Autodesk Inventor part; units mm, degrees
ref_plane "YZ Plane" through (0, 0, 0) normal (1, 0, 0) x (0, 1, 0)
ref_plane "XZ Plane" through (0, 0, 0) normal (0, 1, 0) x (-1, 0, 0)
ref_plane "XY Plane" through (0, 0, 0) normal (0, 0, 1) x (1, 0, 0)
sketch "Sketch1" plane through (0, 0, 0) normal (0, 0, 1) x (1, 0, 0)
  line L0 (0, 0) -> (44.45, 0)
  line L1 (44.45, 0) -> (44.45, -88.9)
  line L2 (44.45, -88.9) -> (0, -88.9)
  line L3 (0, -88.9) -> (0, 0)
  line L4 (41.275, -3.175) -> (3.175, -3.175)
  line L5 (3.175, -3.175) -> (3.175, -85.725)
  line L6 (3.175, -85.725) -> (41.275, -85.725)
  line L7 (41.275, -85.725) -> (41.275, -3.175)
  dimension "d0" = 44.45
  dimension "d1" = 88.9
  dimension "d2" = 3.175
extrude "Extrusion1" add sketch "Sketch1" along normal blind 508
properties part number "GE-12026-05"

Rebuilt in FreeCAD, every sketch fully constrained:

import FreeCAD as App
import Part
import Sketcher

V = App.Vector
Q = App.Units.Quantity


def add_polygon(sketch, points):
    """Adds a closed chain of lines whose ends are joined by coincident constraints."""
    first, n = sketch.GeometryCount, len(points)
    for a, b in zip(points, points[1:] + points[:1]):
        sketch.addGeometry(Part.LineSegment(App.Vector(*a, 0), App.Vector(*b, 0)), False)
    for i in range(n):
        sketch.addConstraint(Sketcher.Constraint("Coincident", first + i, 2, first + (i + 1) % n, 1))

doc = App.newDocument("Part")
params = doc.addObject("Spreadsheet::Sheet", "Params")
for row, (alias, value) in enumerate([
    ("sketch1_height", "3.5 in"),
    ("sketch1_width", "1.75 in"),
    ("sketch1_width2", "1.5 in"),
    ("pad1_length", "20 in"),
], start=1):
    params.set(f"A{row}", alias)
    params.set(f"B{row}", "=" + value)
    params.setAlias(f"B{row}", alias)

body = doc.addObject("PartDesign::Body", "Body")

sketch1 = body.newObject("Sketcher::SketchObject", "Sketch")
sketch1.AttachmentSupport = (doc.getObject("XY_Plane"), [""])
sketch1.MapMode = "FlatFace"
add_polygon(sketch1, [(44.45, 0), (0, 0), (0, -88.9), (44.45, -88.9)])
add_polygon(sketch1, [(3.175, -3.175), (41.275, -3.175), (41.275, -85.725), (3.175, -85.725)])
sketch1.addConstraint([
    Sketcher.Constraint("Horizontal", 0),
    Sketcher.Constraint("Vertical", 1),
    Sketcher.Constraint("Horizontal", 2),
    Sketcher.Constraint("Vertical", 3),
    Sketcher.Constraint("Horizontal", 4),
    Sketcher.Constraint("Vertical", 5),
    Sketcher.Constraint("Horizontal", 6),
    Sketcher.Constraint("Vertical", 7),
    Sketcher.Constraint("Coincident", 0, 2, -1, 1),
    Sketcher.Constraint("DistanceY", 1, 2, 1, 1, Q("3.5 in")),
    Sketcher.Constraint("DistanceX", 0, 2, 0, 1, Q("1.75 in")),
    Sketcher.Constraint("DistanceX", 4, 1, 4, 2, Q("1.5 in")),
    Sketcher.Constraint("DistanceY", 4, 2, -1, 1, Q("0.125 in")),
    Sketcher.Constraint("DistanceX", -1, 1, 6, 2, Q("0.125 in")),
    Sketcher.Constraint("DistanceY", 2, 2, 5, 2, Q("0.125 in")),
])
sketch1.setExpression("Constraints[17]", "Params.sketch1_height")
sketch1.setExpression("Constraints[18]", "Params.sketch1_width")
sketch1.setExpression("Constraints[19]", "Params.sketch1_width2")
pad1 = body.newObject("PartDesign::Pad", "Pad")
pad1.Profile = sketch1
pad1.setExpression("Length", "Params.pad1_length")

doc.recompute()
